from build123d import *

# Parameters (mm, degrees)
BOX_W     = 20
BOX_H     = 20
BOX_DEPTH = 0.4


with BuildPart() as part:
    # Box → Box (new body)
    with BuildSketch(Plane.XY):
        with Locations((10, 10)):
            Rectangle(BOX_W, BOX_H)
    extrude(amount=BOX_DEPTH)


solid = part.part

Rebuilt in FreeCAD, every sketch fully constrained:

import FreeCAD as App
import Part
import Sketcher

V = App.Vector


def add_polygon(sketch, points):
    """Adds a closed chain of lines whose ends are joined by coincident constraints."""
    first, n = sketch.GeometryCount, len(points)
    for a, b in zip(points, points[1:] + points[:1]):
        sketch.addGeometry(Part.LineSegment(App.Vector(*a, 0), App.Vector(*b, 0)), False)
    for i in range(n):
        sketch.addConstraint(Sketcher.Constraint("Coincident", first + i, 2, first + (i + 1) % n, 1))

doc = App.newDocument("Part")
body = doc.addObject("PartDesign::Body", "Body")

# Sketch on XY plane
sketch1 = body.newObject("Sketcher::SketchObject", "Sketch")
sketch1.AttachmentSupport = (doc.getObject("XY_Plane"), [""])
sketch1.MapMode = "FlatFace"
add_polygon(sketch1, [(0, 20), (0, 0), (20, 0), (20, 20)])  # lines 0-3
sketch1.addConstraint([
    Sketcher.Constraint("Vertical", 0),
    Sketcher.Constraint("Horizontal", 1),
    Sketcher.Constraint("Vertical", 2),
    Sketcher.Constraint("Horizontal", 3),
    Sketcher.Constraint("Coincident", 0, 2, -1, 1),
    Sketcher.Constraint("Equal", 3, 0),
    Sketcher.Constraint("DistanceX", 1, 1, 1, 2, 20.0),
])
pad1 = body.newObject("PartDesign::Pad", "Pad")
pad1.Profile = sketch1
pad1.Length = 0.4

doc.recompute()
